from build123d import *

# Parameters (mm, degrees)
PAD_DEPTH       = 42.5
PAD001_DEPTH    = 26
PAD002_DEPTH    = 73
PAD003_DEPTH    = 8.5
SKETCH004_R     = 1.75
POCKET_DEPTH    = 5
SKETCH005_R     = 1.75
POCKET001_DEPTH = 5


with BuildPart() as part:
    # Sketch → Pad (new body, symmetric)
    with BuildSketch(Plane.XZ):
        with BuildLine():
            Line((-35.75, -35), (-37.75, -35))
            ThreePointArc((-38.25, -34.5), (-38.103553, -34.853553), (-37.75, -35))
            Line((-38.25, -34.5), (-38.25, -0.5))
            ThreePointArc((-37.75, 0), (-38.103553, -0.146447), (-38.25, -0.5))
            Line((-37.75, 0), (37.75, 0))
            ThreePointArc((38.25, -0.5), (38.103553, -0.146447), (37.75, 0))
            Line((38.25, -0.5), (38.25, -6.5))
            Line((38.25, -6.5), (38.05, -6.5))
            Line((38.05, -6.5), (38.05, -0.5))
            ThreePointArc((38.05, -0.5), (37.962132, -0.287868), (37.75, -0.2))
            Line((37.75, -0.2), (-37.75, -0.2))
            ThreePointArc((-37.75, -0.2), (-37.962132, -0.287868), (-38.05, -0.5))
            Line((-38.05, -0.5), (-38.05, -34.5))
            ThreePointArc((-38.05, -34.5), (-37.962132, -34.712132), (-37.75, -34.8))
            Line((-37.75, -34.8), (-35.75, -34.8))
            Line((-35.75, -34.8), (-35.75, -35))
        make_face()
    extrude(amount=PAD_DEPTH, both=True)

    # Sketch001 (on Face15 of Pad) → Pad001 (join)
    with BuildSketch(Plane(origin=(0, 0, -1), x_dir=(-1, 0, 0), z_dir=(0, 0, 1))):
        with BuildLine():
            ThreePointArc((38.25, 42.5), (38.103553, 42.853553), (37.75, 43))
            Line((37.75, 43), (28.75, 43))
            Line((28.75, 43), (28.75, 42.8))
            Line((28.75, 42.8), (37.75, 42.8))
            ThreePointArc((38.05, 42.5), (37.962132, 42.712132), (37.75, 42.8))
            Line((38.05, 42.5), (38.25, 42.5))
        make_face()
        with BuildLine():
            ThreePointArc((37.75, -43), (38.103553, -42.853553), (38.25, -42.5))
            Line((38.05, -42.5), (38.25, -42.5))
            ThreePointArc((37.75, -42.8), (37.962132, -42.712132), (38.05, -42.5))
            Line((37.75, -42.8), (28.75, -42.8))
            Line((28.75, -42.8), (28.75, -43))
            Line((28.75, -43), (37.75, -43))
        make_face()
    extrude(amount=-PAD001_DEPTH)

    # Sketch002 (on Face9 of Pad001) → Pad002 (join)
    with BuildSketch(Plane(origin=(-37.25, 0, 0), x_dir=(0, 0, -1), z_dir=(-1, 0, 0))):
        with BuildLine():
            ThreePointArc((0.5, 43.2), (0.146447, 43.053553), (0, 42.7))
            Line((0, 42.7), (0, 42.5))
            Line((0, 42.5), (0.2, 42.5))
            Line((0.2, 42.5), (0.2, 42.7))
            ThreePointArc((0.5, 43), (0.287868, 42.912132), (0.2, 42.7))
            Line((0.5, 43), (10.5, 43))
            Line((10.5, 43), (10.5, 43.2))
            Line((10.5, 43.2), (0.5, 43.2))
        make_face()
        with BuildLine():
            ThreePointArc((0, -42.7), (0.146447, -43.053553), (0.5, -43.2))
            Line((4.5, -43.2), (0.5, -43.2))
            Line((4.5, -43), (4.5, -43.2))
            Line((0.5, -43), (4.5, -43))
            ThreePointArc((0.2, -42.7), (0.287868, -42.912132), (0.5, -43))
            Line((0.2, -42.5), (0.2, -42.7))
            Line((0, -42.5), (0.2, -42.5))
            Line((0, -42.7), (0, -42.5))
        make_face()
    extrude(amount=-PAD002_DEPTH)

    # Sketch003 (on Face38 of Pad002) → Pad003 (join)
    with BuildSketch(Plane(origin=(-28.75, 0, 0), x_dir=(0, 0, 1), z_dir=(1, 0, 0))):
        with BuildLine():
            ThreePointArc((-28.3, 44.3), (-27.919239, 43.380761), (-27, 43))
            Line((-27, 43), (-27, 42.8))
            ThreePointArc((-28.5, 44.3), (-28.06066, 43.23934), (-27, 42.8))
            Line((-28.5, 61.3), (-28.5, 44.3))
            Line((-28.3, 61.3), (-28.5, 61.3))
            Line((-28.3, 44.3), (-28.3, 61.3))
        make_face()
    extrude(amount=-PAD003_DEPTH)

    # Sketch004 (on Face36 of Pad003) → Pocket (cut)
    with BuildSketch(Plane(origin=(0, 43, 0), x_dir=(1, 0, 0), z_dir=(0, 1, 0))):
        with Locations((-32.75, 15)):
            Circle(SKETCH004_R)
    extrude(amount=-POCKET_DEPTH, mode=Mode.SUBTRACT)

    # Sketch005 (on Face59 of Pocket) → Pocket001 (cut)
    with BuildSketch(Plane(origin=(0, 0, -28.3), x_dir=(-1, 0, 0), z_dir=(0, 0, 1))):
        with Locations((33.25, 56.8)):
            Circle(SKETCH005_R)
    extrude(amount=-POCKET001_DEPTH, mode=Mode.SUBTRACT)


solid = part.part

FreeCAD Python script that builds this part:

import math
import FreeCAD as App
import Part
import Sketcher

V = App.Vector
Q = App.Units.Quantity

doc = App.newDocument("Part")
body = doc.addObject("PartDesign::Body", "Body")

# Sketch on XZ plane
sketch1 = body.newObject("Sketcher::SketchObject", "Sketch")
sketch1.AttachmentSupport = (doc.getObject("XZ_Plane"), [""])
sketch1.MapMode = "FlatFace"
sketch1.addGeometry(Part.LineSegment(V(-37.75, -35, 0), V(-35.75, -35, 0)), False)
sketch1.addGeometry(Part.LineSegment(V(-35.75, -35, 0), V(-35.75, -34.8, 0)), False)
sketch1.addGeometry(Part.LineSegment(V(-35.75, -34.8, 0), V(-37.75, -34.8, 0)), False)
sketch1.addGeometry(Part.ArcOfCircle(Part.Circle(V(-37.75, -34.5, 0), V(0, 0, 1), 0.3), math.radians(-179.999978), math.radians(-90.000022)), False)
sketch1.addGeometry(Part.LineSegment(V(-38.05, -34.5, 0), V(-38.05, -0.5, 0)), False)
sketch1.addGeometry(Part.ArcOfCircle(Part.Circle(V(-37.75, -0.5, 0), V(0, 0, 1), 0.3), math.radians(90.000022), math.radians(179.999978)), False)
sketch1.addGeometry(Part.LineSegment(V(-37.75, -0.2, 0), V(37.75, -0.2, 0)), False)
sketch1.addGeometry(Part.ArcOfCircle(Part.Circle(V(37.75, -0.5, 0), V(0, 0, 1), 0.3), math.radians(0.000022), math.radians(89.999978)), False)
sketch1.addGeometry(Part.LineSegment(V(38.05, -0.5, 0), V(38.05, -6.5, 0)), False)
sketch1.addGeometry(Part.LineSegment(V(38.05, -6.5, 0), V(38.25, -6.5, 0)), False)
sketch1.addGeometry(Part.LineSegment(V(38.25, -6.5, 0), V(38.25, -0.5, 0)), False)
sketch1.addGeometry(Part.ArcOfCircle(Part.Circle(V(37.749999, -0.500001, 0), V(0, 0, 1), 0.500001), math.radians(0.000153), math.radians(89.999847)), False)
sketch1.addGeometry(Part.LineSegment(V(37.75, 0, 0), V(-37.75, 0, 0)), False)
sketch1.addGeometry(Part.ArcOfCircle(Part.Circle(V(-37.749999, -0.500001, 0), V(0, 0, 1), 0.500001), math.radians(90.000153), math.radians(179.999847)), False)
sketch1.addGeometry(Part.LineSegment(V(-38.25, -0.5, 0), V(-38.25, -34.5, 0)), False)
sketch1.addGeometry(Part.ArcOfCircle(Part.Circle(V(-37.749999, -34.499999, 0), V(0, 0, 1), 0.500001), math.radians(-179.999847), math.radians(-90.000153)), False)
sketch1.addConstraint(Sketcher.Constraint("Coincident", 0, 2, 1, 1))
sketch1.addConstraint(Sketcher.Constraint("Coincident", 1, 2, 2, 1))
sketch1.addConstraint(Sketcher.Constraint("Tangent", 2, 2, 3, 2))
sketch1.addConstraint(Sketcher.Constraint("Tangent", 3, 1, 4, 1))
sketch1.addConstraint(Sketcher.Constraint("Tangent", 4, 2, 5, 2))
sketch1.addConstraint(Sketcher.Constraint("Tangent", 5, 1, 6, 1))
sketch1.addConstraint(Sketcher.Constraint("Tangent", 6, 2, 7, 2))
sketch1.addConstraint(Sketcher.Constraint("Tangent", 7, 1, 8, 1))
sketch1.addConstraint(Sketcher.Constraint("Coincident", 8, 2, 9, 1))
sketch1.addConstraint(Sketcher.Constraint("Coincident", 9, 2, 10, 1))
sketch1.addConstraint(Sketcher.Constraint("Coincident", 10, 2, 11, 1))
sketch1.addConstraint(Sketcher.Constraint("Coincident", 11, 2, 12, 1))
sketch1.addConstraint(Sketcher.Constraint("Coincident", 12, 2, 13, 1))
sketch1.addConstraint(Sketcher.Constraint("Coincident", 13, 2, 14, 1))
sketch1.addConstraint(Sketcher.Constraint("Coincident", 14, 2, 15, 1))
sketch1.addConstraint(Sketcher.Constraint("Coincident", 15, 2, 0, 1))
sketch1.addConstraint(Sketcher.Constraint("Horizontal", 0))
sketch1.addConstraint(Sketcher.Constraint("Vertical", 1))
sketch1.addConstraint(Sketcher.Constraint("Horizontal", 2))
sketch1.addConstraint(Sketcher.Constraint("Vertical", 4))
sketch1.addConstraint(Sketcher.Constraint("Horizontal", 6))
sketch1.addConstraint(Sketcher.Constraint("Vertical", 8))
sketch1.addConstraint(Sketcher.Constraint("Horizontal", 9))
sketch1.addConstraint(Sketcher.Constraint("Vertical", 10))
sketch1.addConstraint(Sketcher.Constraint("Horizontal", 12))
sketch1.addConstraint(Sketcher.Constraint("Vertical", 14))
sketch1.addConstraint(Sketcher.Constraint("Coincident", 11, 3, 7, 3))
sketch1.addConstraint(Sketcher.Constraint("Coincident", 13, 3, 5, 3))
sketch1.addConstraint(Sketcher.Constraint("Coincident", 15, 3, 3, 3))
sketch1.addConstraint(Sketcher.Constraint("Equal", 3, 5))
sketch1.addConstraint(Sketcher.Constraint("Equal", 5, 7))
sketch1.addConstraint(Sketcher.Constraint("Symmetric", 11, 2, 12, 2, -1, 1))
sketch1.addConstraint(Sketcher.Constraint("Symmetric", 10, 2, 13, 2, -2))
sketch1.addConstraint(Sketcher.Constraint("Horizontal", 7, 1, 10, 2))
sketch1.addConstraint(Sketcher.Constraint("Horizontal", 3, 1, 14, 2))
sketch1.addConstraint(Sketcher.Constraint("Vertical", 6, 2, 11, 2))
sketch1.addConstraint(Sketcher.Constraint("Vertical", 12, 2, 15, 2))
sketch1.addConstraint(Sketcher.Constraint("Radius", 3, Q("0.3 mm")))
sketch1.addConstraint(Sketcher.Constraint("Radius", 11, Q("0.500001 mm")))
sketch1.addConstraint(Sketcher.Constraint("DistanceX", 0, 1, 0, 2, Q("2 mm")))
sketch1.addConstraint(Sketcher.Constraint("DistanceY", 4, 1, 4, 2, Q("34 mm")))
sketch1.addConstraint(Sketcher.Constraint("DistanceY", 8, 2, 8, 1, Q("6 mm")))
sketch1.addConstraint(Sketcher.Constraint("DistanceX", 6, 1, 6, 2, Q("75.5 mm")))
pad1 = body.newObject("PartDesign::Pad", "Pad")
pad1.Profile = sketch1
pad1.Length = 85
pad1.Midplane = True

# Sketch on XY plane
sketch2 = body.newObject("Sketcher::SketchObject", "Sketch001")
sketch2.AttachmentSupport = (doc.getObject("XY_Plane"), [""])
sketch2.MapMode = "FlatFace"
sketch2.AttachmentOffset = App.Placement(V(0, 0, -1), App.Rotation())
sketch2.addGeometry(Part.ArcOfCircle(Part.Circle(V(-37.749999, -42.499999, 0), V(0, 0, 1), 0.500001), math.radians(-179.999847), math.radians(-90.000153)), False)
sketch2.addGeometry(Part.LineSegment(V(-37.75, -43, 0), V(-28.75, -43, 0)), False)
sketch2.addGeometry(Part.LineSegment(V(-28.75, -43, 0), V(-28.75, -42.8, 0)), False)
sketch2.addGeometry(Part.LineSegment(V(-28.75, -42.8, 0), V(-37.75, -42.8, 0)), False)
sketch2.addGeometry(Part.ArcOfCircle(Part.Circle(V(-37.75, -42.5, 0), V(0, 0, 1), 0.3), math.radians(-179.999978), math.radians(-90.000022)), False)
sketch2.addGeometry(Part.LineSegment(V(-38.05, -42.5, 0), V(-38.25, -42.5, 0)), False)
sketch2.addGeometry(Part.ArcOfCircle(Part.Circle(V(-37.749999, 42.499999, 0), V(0, 0, 1), 0.500001), math.radians(90.000153), math.radians(179.999847)), False)
sketch2.addGeometry(Part.LineSegment(V(-38.25, 42.5, 0), V(-38.05, 42.5, 0)), False)
sketch2.addGeometry(Part.ArcOfCircle(Part.Circle(V(-37.75, 42.5, 0), V(0, 0, 1), 0.3), math.radians(90.000022), math.radians(179.999978)), False)
sketch2.addGeometry(Part.LineSegment(V(-37.75, 42.8, 0), V(-28.75, 42.8, 0)), False)
sketch2.addGeometry(Part.LineSegment(V(-28.75, 42.8, 0), V(-28.75, 43, 0)), False)
sketch2.addGeometry(Part.LineSegment(V(-28.75, 43, 0), V(-37.75, 43, 0)), False)
sketch2.addConstraint(Sketcher.Constraint("Coincident", 0, 2, 1, 1))
sketch2.addConstraint(Sketcher.Constraint("Coincident", 1, 2, 2, 1))
sketch2.addConstraint(Sketcher.Constraint("Coincident", 2, 2, 3, 1))
sketch2.addConstraint(Sketcher.Constraint("Tangent", 3, 2, 4, 2))
sketch2.addConstraint(Sketcher.Constraint("Coincident", 4, 1, 5, 1))
sketch2.addConstraint(Sketcher.Constraint("Coincident", 5, 2, 0, 1))
sketch2.addConstraint(Sketcher.Constraint("Coincident", 6, 2, 7, 1))
sketch2.addConstraint(Sketcher.Constraint("Coincident", 7, 2, 8, 2))
sketch2.addConstraint(Sketcher.Constraint("Tangent", 8, 1, 9, 1))
sketch2.addConstraint(Sketcher.Constraint("Coincident", 9, 2, 10, 1))
sketch2.addConstraint(Sketcher.Constraint("Coincident", 10, 2, 11, 1))
sketch2.addConstraint(Sketcher.Constraint("Coincident", 11, 2, 6, 1))
sketch2.addConstraint(Sketcher.Constraint("Horizontal", 1))
sketch2.addConstraint(Sketcher.Constraint("Vertical", 2))
sketch2.addConstraint(Sketcher.Constraint("Horizontal", 3))
sketch2.addConstraint(Sketcher.Constraint("Horizontal", 5))
sketch2.addConstraint(Sketcher.Constraint("Horizontal", 7))
sketch2.addConstraint(Sketcher.Constraint("Horizontal", 9))
sketch2.addConstraint(Sketcher.Constraint("Vertical", 10))
sketch2.addConstraint(Sketcher.Constraint("Horizontal", 11))
sketch2.addConstraint(Sketcher.Constraint("Coincident", 4, 3, 0, 3))
sketch2.addConstraint(Sketcher.Constraint("Coincident", 8, 3, 6, 3))
sketch2.addConstraint(Sketcher.Constraint("Equal", 0, 6))
sketch2.addConstraint(Sketcher.Constraint("Equal", 4, 8))
sketch2.addConstraint(Sketcher.Constraint("Symmetric", 0, 3, 6, 3, -1))
sketch2.addConstraint(Sketcher.Constraint("Horizontal", 0, 3, 4, 1))
sketch2.addConstraint(Sketcher.Constraint("Horizontal", 8, 3, 6, 2))
sketch2.addConstraint(Sketcher.Constraint("Vertical", 8, 3, 0, 2))
sketch2.addConstraint(Sketcher.Constraint("Vertical", 2, 2, 9, 2))
sketch2.addConstraint(Sketcher.Constraint("Vertical", 8, 1, 11, 2))
sketch2.addConstraint(Sketcher.Constraint("Radius", 0, Q("0.500001 mm")))
sketch2.addConstraint(Sketcher.Constraint("Radius", 4, Q("0.3 mm")))
sketch2.addConstraint(Sketcher.Constraint("DistanceX", 1, 1, 1, 2, Q("9 mm")))
sketch2.addConstraint(Sketcher.Constraint("DistanceY", 0, 2, -1, 1, Q("43 mm")))
sketch2.addConstraint(Sketcher.Constraint("DistanceX", 0, 3, -1, 1, Q("37.749999 mm")))
pad2 = body.newObject("PartDesign::Pad", "Pad001")
pad2.Profile = sketch2
pad2.Length = 26
pad2.Reversed = True

# Sketch on YZ plane
sketch3 = body.newObject("Sketcher::SketchObject", "Sketch002")
sketch3.AttachmentSupport = (doc.getObject("YZ_Plane"), [""])
sketch3.MapMode = "FlatFace"
sketch3.AttachmentOffset = App.Placement(V(0, 0, -37.25), App.Rotation())
sketch3.addGeometry(Part.ArcOfCircle(Part.Circle(V(-42.699999, -0.500001, 0), V(0, 0, 1), 0.500001), math.radians(90.000153), math.radians(179.999847)), False)
sketch3.addGeometry(Part.LineSegment(V(-42.7, 0, 0), V(-42.5, 0, 0)), False)
sketch3.addGeometry(Part.LineSegment(V(-42.5, 0, 0), V(-42.5, -0.2, 0)), False)
sketch3.addGeometry(Part.LineSegment(V(-42.5, -0.2, 0), V(-42.7, -0.2, 0)), False)
sketch3.addGeometry(Part.ArcOfCircle(Part.Circle(V(-42.7, -0.5, 0), V(0, 0, 1), 0.3), math.radians(90.000022), math.radians(179.999978)), False)
sketch3.addGeometry(Part.LineSegment(V(-43, -0.5, 0), V(-43, -10.5, 0)), False)
sketch3.addGeometry(Part.LineSegment(V(-43, -10.5, 0), V(-43.2, -10.5, 0)), False)
sketch3.addGeometry(Part.LineSegment(V(-43.2, -10.5, 0), V(-43.2, -0.5, 0)), False)
sketch3.addGeometry(Part.ArcOfCircle(Part.Circle(V(42.699999, -0.500001, 0), V(0, 0, 1), 0.500001), math.radians(0.000153), math.radians(89.999847)), False)
sketch3.addGeometry(Part.LineSegment(V(43.2, -0.5, 0), V(43.2, -4.5, 0)), False)
sketch3.addGeometry(Part.LineSegment(V(43.2, -4.5, 0), V(43, -4.5, 0)), False)
sketch3.addGeometry(Part.LineSegment(V(43, -4.5, 0), V(43, -0.5, 0)), False)
sketch3.addGeometry(Part.ArcOfCircle(Part.Circle(V(42.7, -0.5, 0), V(0, 0, 1), 0.3), math.radians(0.000022), math.radians(89.999978)), False)
sketch3.addGeometry(Part.LineSegment(V(42.7, -0.2, 0), V(42.5, -0.2, 0)), False)
sketch3.addGeometry(Part.LineSegment(V(42.5, -0.2, 0), V(42.5, 0, 0)), False)
sketch3.addGeometry(Part.LineSegment(V(42.5, 0, 0), V(42.7, 0, 0)), False)
sketch3.addConstraint(Sketcher.Constraint("Coincident", 0, 1, 1, 1))
sketch3.addConstraint(Sketcher.Constraint("Coincident", 1, 2, 2, 1))
sketch3.addConstraint(Sketcher.Constraint("Coincident", 2, 2, 3, 1))
sketch3.addConstraint(Sketcher.Constraint("Tangent", 3, 2, 4, 1))
sketch3.addConstraint(Sketcher.Constraint("Tangent", 4, 2, 5, 1))
sketch3.addConstraint(Sketcher.Constraint("Coincident", 5, 2, 6, 1))
sketch3.addConstraint(Sketcher.Constraint("Coincident", 6, 2, 7, 1))
sketch3.addConstraint(Sketcher.Constraint("Coincident", 7, 2, 0, 2))
sketch3.addConstraint(Sketcher.Constraint("Coincident", 8, 1, 9, 1))
sketch3.addConstraint(Sketcher.Constraint("Coincident", 9, 2, 10, 1))
sketch3.addConstraint(Sketcher.Constraint("Coincident", 10, 2, 11, 1))
sketch3.addConstraint(Sketcher.Constraint("Tangent", 11, 2, 12, 1))
sketch3.addConstraint(Sketcher.Constraint("Tangent", 12, 2, 13, 1))
sketch3.addConstraint(Sketcher.Constraint("Coincident", 13, 2, 14, 1))
sketch3.addConstraint(Sketcher.Constraint("Coincident", 14, 2, 15, 1))
sketch3.addConstraint(Sketcher.Constraint("Coincident", 15, 2, 8, 2))
sketch3.addConstraint(Sketcher.Constraint("Horizontal", 1))
sketch3.addConstraint(Sketcher.Constraint("Vertical", 2))
sketch3.addConstraint(Sketcher.Constraint("Horizontal", 3))
sketch3.addConstraint(Sketcher.Constraint("Vertical", 5))
sketch3.addConstraint(Sketcher.Constraint("Horizontal", 6))
sketch3.addConstraint(Sketcher.Constraint("Vertical", 7))
sketch3.addConstraint(Sketcher.Constraint("Vertical", 9))
sketch3.addConstraint(Sketcher.Constraint("Horizontal", 10))
sketch3.addConstraint(Sketcher.Constraint("Vertical", 11))
sketch3.addConstraint(Sketcher.Constraint("Horizontal", 13))
sketch3.addConstraint(Sketcher.Constraint("Vertical", 14))
sketch3.addConstraint(Sketcher.Constraint("Horizontal", 15))
sketch3.addConstraint(Sketcher.Constraint("Coincident", 4, 3, 0, 3))
sketch3.addConstraint(Sketcher.Constraint("Coincident", 12, 3, 8, 3))
sketch3.addConstraint(Sketcher.Constraint("Equal", 0, 8))
sketch3.addConstraint(Sketcher.Constraint("Equal", 4, 12))
sketch3.addConstraint(Sketcher.Constraint("Symmetric", 1, 2, 14, 2, -1, 1))
sketch3.addConstraint(Sketcher.Constraint("Symmetric", 0, 3, 8, 3, -2))
sketch3.addConstraint(Sketcher.Constraint("Horizontal", 4, 2, 7, 2))
sketch3.addConstraint(Sketcher.Constraint("Horizontal", 7, 2, 8, 1))
sketch3.addConstraint(Sketcher.Constraint("Vertical", 4, 3, 0, 1))
sketch3.addConstraint(Sketcher.Constraint("Vertical", 12, 2, 15, 2))
sketch3.addConstraint(Sketcher.Constraint("Equal", 3, 6))
sketch3.addConstraint(Sketcher.Constraint("Radius", 0, Q("0.500001 mm")))
sketch3.addConstraint(Sketcher.Constraint("Radius", 4, Q("0.3 mm")))
sketch3.addConstraint(Sketcher.Constraint("DistanceY", 5, 2, 5, 1, Q("10 mm")))
sketch3.addConstraint(Sketcher.Constraint("DistanceY", 9, 2, 9, 1, Q("4 mm")))
sketch3.addConstraint(Sketcher.Constraint("DistanceX", 4, 2, -1, 1, Q("43 mm")))
pad3 = body.newObject("PartDesign::Pad", "Pad002")
pad3.Profile = sketch3
pad3.Length = 73

# Sketch on YZ plane
sketch4 = body.newObject("Sketcher::SketchObject", "Sketch003")
sketch4.AttachmentSupport = (doc.getObject("YZ_Plane"), [""])
sketch4.MapMode = "FlatFace"
sketch4.AttachmentOffset = App.Placement(V(0, 0, -28.75), App.Rotation())
sketch4.addGeometry(Part.ArcOfCircle(Part.Circle(V(-44.299999, -27.000001, 0), V(0, 0, 1), 1.299999), math.radians(-90.000028), math.radians(0.000028)), False)
sketch4.addGeometry(Part.LineSegment(V(-44.3, -28.3, 0), V(-61.3, -28.3, 0)), False)
sketch4.addGeometry(Part.LineSegment(V(-61.3, -28.3, 0), V(-61.3, -28.5, 0)), False)
sketch4.addGeometry(Part.LineSegment(V(-61.3, -28.5, 0), V(-44.3, -28.5, 0)), False)
sketch4.addGeometry(Part.ArcOfCircle(Part.Circle(V(-44.300001, -26.999999, 0), V(0, 0, 1), 1.500001), math.radians(-89.999978), math.radians(-0.000022)), False)
sketch4.addGeometry(Part.LineSegment(V(-42.8, -27, 0), V(-43, -27, 0)), False)
sketch4.addConstraint(Sketcher.Constraint("Tangent", 0, 1, 1, 1))
sketch4.addConstraint(Sketcher.Constraint("Coincident", 1, 2, 2, 1))
sketch4.addConstraint(Sketcher.Constraint("Coincident", 2, 2, 3, 1))
sketch4.addConstraint(Sketcher.Constraint("Tangent", 3, 2, 4, 1))
sketch4.addConstraint(Sketcher.Constraint("Coincident", 4, 2, 5, 1))
sketch4.addConstraint(Sketcher.Constraint("Coincident", 5, 2, 0, 2))
sketch4.addConstraint(Sketcher.Constraint("Horizontal", 1))
sketch4.addConstraint(Sketcher.Constraint("Vertical", 2))
sketch4.addConstraint(Sketcher.Constraint("Horizontal", 3))
sketch4.addConstraint(Sketcher.Constraint("Horizontal", 5))
sketch4.addConstraint(Sketcher.Constraint("Coincident", 4, 3, 0, 3))
sketch4.addConstraint(Sketcher.Constraint("Horizontal", 0, 3, 4, 2))
sketch4.addConstraint(Sketcher.Constraint("Radius", 0, Q("1.299999 mm")))
sketch4.addConstraint(Sketcher.Constraint("Radius", 4, Q("1.500001 mm")))
sketch4.addConstraint(Sketcher.Constraint("DistanceX", 1, 2, 1, 1, Q("17 mm")))
sketch4.addConstraint(Sketcher.Constraint("DistanceY", 0, 3, -1, 1, Q("27.000001 mm")))
sketch4.addConstraint(Sketcher.Constraint("DistanceX", 5, 2, -1, 1, Q("43 mm")))
pad4 = body.newObject("PartDesign::Pad", "Pad003")
pad4.Profile = sketch4
pad4.Length = 8.5
pad4.Reversed = True

# Sketch on XZ plane
sketch5 = body.newObject("Sketcher::SketchObject", "Sketch004")
sketch5.AttachmentSupport = (doc.getObject("XZ_Plane"), [""])
sketch5.MapMode = "FlatFace"
sketch5.AttachmentOffset = App.Placement(V(0, 0, -43), App.Rotation())
sketch5.addGeometry(Part.Circle(V(-32.75, -15, 0), V(0, 0, 1), 1.75), False)
sketch5.addConstraint(Sketcher.Constraint("Diameter", 0, Q("3.5 mm")))
sketch5.addConstraint(Sketcher.Constraint("DistanceY", 0, 3, -1, 1, Q("15 mm")))
sketch5.addConstraint(Sketcher.Constraint("DistanceX", 0, 3, -1, 1, Q("32.75 mm")))
pocket1 = body.newObject("PartDesign::Pocket", "Pocket")
pocket1.Profile = sketch5
pocket1.Length = 5
pocket1.Reversed = True

# Sketch on XY plane
sketch6 = body.newObject("Sketcher::SketchObject", "Sketch005")
sketch6.AttachmentSupport = (doc.getObject("XY_Plane"), [""])
sketch6.MapMode = "FlatFace"
sketch6.AttachmentOffset = App.Placement(V(0, 0, -28.3), App.Rotation())
sketch6.addGeometry(Part.Circle(V(-33.25, -56.8, 0), V(0, 0, 1), 1.75), False)
sketch6.addConstraint(Sketcher.Constraint("Diameter", 0, Q("3.5 mm")))
sketch6.addConstraint(Sketcher.Constraint("DistanceY", 0, 3, -1, 1, Q("56.8 mm")))
sketch6.addConstraint(Sketcher.Constraint("DistanceX", 0, 3, -1, 1, Q("33.25 mm")))
pocket2 = body.newObject("PartDesign::Pocket", "Pocket001")
pocket2.Profile = sketch6
pocket2.Length = 5

doc.recompute()
